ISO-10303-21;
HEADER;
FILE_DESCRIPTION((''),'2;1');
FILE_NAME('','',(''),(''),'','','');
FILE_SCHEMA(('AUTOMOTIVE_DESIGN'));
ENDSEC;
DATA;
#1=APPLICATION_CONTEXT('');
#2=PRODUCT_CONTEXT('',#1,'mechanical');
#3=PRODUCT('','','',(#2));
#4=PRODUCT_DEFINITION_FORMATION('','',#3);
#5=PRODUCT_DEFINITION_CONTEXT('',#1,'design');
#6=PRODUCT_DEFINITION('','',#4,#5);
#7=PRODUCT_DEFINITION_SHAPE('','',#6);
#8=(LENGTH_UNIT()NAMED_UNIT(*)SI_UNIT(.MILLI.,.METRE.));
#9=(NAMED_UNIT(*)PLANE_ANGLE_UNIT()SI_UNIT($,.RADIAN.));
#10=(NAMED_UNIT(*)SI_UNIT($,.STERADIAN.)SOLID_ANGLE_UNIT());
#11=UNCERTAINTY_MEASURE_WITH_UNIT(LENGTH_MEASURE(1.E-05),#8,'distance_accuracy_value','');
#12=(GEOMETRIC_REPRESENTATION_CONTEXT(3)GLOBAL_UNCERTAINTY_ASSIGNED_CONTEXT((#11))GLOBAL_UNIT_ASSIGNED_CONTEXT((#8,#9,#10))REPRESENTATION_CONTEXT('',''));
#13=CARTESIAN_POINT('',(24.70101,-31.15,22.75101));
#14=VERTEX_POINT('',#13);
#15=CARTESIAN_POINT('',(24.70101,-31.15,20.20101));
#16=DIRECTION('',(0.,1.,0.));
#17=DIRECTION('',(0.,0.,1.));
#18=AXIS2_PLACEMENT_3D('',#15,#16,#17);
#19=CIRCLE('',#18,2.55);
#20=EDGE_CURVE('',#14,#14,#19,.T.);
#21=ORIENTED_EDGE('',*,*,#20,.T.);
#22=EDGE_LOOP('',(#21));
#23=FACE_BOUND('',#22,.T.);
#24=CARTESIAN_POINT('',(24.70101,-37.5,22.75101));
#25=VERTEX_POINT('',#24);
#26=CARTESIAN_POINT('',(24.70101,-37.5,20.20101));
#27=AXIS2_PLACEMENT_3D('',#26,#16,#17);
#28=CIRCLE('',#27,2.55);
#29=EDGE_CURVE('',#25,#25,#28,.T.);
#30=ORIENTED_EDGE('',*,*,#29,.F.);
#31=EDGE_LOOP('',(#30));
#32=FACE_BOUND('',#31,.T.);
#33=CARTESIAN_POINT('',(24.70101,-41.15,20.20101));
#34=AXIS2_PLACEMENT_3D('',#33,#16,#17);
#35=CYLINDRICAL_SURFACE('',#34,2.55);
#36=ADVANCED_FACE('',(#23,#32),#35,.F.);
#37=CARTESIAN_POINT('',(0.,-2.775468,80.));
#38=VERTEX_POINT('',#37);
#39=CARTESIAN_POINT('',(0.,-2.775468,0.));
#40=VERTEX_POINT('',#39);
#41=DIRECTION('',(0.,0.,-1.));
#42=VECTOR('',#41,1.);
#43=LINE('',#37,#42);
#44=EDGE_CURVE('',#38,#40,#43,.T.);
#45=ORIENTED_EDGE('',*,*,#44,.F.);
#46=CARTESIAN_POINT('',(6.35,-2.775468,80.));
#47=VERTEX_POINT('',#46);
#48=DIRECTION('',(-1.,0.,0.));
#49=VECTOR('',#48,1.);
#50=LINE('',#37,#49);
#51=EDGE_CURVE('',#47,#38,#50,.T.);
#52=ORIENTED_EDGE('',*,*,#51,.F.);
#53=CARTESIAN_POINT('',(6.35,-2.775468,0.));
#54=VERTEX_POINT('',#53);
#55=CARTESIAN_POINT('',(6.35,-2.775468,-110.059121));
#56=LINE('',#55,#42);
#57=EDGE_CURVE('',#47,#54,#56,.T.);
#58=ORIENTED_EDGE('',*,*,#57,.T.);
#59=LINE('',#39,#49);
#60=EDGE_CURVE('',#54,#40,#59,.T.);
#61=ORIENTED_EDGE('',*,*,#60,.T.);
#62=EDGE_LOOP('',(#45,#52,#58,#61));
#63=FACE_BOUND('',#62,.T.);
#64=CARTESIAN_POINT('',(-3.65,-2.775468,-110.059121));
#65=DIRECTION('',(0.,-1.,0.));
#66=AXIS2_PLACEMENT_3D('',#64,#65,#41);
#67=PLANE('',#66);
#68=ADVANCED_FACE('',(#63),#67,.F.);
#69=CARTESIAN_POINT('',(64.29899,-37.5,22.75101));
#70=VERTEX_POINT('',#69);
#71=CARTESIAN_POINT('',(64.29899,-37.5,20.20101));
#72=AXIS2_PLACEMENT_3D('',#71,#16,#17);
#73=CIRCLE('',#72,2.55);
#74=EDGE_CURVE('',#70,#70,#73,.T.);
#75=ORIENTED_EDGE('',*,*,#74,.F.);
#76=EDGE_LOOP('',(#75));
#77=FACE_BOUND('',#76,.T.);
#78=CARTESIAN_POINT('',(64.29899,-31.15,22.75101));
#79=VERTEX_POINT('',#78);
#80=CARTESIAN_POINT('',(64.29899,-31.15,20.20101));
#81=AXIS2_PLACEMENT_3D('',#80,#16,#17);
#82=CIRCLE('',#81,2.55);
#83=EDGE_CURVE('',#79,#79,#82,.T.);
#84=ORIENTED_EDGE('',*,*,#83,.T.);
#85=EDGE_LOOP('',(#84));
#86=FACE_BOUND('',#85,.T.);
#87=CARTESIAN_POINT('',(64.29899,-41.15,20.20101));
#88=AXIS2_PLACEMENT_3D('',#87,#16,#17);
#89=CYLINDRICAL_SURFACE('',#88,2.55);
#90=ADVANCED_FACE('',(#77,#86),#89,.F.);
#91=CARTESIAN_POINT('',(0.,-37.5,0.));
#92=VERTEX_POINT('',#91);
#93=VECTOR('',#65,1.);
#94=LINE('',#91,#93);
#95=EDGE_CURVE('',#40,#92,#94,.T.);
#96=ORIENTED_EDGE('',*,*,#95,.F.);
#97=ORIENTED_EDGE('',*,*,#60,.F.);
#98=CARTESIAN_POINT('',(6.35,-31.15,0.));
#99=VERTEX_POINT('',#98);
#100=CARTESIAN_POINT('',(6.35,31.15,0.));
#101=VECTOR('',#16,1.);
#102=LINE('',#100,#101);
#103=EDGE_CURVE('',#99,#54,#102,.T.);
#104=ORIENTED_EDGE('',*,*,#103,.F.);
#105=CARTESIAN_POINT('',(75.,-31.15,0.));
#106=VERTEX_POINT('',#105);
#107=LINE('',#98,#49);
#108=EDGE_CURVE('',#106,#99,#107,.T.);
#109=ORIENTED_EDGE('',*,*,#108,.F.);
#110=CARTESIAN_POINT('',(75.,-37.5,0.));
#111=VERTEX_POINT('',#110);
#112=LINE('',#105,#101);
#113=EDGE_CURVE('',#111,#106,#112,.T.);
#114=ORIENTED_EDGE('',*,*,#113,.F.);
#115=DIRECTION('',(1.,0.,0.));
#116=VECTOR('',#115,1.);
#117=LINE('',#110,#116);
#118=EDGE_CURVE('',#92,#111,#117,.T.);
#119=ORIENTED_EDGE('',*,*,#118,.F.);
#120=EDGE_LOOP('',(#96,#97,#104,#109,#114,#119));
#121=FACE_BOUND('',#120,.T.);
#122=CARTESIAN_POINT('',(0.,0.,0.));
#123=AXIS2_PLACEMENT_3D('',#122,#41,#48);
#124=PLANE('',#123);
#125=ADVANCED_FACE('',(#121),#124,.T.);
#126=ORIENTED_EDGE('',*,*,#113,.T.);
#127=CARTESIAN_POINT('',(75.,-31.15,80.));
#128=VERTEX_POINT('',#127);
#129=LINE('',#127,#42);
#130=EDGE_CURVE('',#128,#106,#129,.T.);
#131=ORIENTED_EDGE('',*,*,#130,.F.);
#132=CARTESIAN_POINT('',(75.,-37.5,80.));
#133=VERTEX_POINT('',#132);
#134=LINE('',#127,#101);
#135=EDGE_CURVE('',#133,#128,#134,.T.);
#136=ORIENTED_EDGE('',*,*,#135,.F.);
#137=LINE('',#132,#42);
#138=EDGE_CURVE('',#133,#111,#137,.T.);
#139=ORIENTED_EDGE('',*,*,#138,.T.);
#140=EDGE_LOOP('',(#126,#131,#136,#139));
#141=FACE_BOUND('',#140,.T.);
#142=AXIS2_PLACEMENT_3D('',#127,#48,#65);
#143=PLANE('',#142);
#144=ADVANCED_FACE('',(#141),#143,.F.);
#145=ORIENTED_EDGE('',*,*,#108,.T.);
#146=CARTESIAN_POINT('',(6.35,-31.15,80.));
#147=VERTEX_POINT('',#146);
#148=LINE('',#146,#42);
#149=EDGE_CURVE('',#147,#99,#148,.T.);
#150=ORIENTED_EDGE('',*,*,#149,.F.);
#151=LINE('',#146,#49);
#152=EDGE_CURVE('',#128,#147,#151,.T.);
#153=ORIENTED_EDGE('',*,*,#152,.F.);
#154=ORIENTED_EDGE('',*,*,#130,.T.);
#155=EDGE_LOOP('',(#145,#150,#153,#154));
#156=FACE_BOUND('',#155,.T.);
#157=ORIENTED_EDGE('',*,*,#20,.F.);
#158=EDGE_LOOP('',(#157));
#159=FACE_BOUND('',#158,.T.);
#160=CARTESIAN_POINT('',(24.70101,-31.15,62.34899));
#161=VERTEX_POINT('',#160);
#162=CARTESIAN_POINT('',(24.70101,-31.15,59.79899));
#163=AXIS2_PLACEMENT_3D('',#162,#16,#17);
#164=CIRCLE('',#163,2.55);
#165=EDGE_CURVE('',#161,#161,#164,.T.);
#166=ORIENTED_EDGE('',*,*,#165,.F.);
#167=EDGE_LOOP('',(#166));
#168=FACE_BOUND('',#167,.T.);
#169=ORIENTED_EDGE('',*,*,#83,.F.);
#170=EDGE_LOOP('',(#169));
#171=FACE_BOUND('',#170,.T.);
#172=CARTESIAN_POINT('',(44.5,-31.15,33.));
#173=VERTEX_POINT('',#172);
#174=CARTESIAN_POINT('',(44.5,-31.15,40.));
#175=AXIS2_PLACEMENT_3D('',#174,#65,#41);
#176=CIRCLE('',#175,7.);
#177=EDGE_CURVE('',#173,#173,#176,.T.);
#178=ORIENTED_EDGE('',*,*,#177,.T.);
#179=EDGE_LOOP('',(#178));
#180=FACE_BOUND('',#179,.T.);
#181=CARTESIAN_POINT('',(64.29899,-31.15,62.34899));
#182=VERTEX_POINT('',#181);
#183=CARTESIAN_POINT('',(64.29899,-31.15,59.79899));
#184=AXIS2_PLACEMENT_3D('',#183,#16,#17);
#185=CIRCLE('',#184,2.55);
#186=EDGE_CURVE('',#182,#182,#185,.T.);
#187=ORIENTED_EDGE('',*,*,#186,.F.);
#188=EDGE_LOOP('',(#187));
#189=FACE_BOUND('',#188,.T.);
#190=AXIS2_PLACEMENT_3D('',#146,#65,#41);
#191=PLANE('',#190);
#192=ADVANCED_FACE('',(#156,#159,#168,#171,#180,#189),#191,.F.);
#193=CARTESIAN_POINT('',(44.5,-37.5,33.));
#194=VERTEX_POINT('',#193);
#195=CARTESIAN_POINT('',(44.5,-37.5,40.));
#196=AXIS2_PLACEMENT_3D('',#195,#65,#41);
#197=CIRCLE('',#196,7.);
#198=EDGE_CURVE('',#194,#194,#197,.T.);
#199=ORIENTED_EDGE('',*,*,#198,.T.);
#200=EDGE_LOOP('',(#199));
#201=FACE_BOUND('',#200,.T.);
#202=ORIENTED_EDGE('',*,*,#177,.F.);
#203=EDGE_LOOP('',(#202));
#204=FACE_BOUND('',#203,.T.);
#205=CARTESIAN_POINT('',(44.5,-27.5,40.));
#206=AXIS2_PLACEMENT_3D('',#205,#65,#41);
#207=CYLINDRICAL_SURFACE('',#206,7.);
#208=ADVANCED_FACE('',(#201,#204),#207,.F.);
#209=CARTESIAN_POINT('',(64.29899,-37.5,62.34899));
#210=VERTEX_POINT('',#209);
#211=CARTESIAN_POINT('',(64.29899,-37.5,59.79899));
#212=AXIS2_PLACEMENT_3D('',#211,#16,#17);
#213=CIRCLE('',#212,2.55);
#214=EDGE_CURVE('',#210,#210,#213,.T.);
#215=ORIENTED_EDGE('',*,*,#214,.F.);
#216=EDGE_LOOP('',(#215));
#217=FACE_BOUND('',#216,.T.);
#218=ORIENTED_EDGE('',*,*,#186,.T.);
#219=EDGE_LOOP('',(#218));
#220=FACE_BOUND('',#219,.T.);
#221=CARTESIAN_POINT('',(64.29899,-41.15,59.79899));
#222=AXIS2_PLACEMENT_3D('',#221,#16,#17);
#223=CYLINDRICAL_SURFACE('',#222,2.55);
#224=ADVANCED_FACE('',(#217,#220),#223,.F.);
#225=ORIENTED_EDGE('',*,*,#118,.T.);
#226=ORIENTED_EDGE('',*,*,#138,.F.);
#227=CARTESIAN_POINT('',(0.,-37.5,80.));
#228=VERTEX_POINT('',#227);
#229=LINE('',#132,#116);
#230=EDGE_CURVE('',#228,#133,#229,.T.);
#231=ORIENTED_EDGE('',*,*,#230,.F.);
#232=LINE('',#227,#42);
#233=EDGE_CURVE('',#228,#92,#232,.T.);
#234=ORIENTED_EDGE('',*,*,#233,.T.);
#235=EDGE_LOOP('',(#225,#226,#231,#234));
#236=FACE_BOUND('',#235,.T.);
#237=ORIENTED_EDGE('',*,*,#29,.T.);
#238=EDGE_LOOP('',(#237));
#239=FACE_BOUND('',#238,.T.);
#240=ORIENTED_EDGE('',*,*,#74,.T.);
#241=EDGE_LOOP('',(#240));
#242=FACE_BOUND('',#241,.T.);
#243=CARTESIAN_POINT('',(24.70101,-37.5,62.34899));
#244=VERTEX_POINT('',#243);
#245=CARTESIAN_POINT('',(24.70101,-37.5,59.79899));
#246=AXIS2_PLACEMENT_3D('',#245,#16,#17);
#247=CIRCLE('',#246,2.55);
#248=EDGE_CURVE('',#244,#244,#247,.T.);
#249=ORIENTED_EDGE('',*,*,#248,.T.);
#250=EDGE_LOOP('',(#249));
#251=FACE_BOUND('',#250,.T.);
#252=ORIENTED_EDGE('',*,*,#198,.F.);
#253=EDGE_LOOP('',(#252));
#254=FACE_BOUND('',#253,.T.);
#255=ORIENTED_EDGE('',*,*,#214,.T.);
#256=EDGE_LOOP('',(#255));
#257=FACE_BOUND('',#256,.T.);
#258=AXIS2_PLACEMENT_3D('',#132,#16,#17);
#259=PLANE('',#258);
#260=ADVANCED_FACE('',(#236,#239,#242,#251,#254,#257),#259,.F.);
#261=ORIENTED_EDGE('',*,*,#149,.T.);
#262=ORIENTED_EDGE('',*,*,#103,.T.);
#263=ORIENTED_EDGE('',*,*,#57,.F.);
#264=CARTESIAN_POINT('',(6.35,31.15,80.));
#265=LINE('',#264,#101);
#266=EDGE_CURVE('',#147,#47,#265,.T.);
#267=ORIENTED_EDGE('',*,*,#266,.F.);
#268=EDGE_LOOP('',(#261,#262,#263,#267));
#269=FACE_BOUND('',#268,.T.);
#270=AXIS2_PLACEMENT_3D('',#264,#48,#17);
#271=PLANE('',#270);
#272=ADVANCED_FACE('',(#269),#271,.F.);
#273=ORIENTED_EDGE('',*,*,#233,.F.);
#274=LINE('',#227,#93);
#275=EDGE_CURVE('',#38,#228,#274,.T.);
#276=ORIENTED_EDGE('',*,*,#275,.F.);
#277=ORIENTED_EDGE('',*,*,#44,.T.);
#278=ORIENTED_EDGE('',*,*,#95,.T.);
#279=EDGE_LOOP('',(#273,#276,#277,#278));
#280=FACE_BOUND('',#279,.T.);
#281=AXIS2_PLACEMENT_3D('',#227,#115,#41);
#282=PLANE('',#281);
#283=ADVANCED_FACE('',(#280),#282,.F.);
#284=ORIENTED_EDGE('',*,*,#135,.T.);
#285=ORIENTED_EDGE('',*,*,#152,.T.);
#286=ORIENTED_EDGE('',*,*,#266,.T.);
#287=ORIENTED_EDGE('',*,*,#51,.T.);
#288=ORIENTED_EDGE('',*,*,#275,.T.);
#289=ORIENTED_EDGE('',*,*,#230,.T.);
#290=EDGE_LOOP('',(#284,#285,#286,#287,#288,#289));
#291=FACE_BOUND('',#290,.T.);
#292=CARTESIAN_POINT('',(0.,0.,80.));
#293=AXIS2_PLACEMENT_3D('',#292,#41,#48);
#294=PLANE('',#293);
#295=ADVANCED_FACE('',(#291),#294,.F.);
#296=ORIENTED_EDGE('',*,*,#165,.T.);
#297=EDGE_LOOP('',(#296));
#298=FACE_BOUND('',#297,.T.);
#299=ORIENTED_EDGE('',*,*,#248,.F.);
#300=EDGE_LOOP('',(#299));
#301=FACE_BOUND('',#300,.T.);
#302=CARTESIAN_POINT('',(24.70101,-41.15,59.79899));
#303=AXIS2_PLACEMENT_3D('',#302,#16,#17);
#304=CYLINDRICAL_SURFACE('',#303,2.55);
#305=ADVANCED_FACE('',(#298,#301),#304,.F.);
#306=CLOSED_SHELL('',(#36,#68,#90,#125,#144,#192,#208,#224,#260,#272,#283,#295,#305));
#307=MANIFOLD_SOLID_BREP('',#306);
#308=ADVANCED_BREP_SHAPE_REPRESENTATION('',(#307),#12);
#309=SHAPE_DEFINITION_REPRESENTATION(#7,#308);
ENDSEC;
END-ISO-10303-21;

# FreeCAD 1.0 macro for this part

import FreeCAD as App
import Part
import Sketcher

V = App.Vector
Q = App.Units.Quantity


def add_polygon(sketch, points):
    """Adds a closed chain of lines whose ends are joined by coincident constraints."""
    first, n = sketch.GeometryCount, len(points)
    for a, b in zip(points, points[1:] + points[:1]):
        sketch.addGeometry(Part.LineSegment(App.Vector(*a, 0), App.Vector(*b, 0)), False)
    for i in range(n):
        sketch.addConstraint(Sketcher.Constraint("Coincident", first + i, 2, first + (i + 1) % n, 1))

doc = App.newDocument("Part")
body = doc.addObject("PartDesign::Body", "Body")

# Sketch on XY plane
sketch1 = body.newObject("Sketcher::SketchObject", "Sketch")
sketch1.AttachmentSupport = (doc.getObject("XY_Plane"), [""])
sketch1.MapMode = "FlatFace"
add_polygon(sketch1, [(0, 38), (0, -38), (75, -38), (75, -31), (6, -31), (6, 31), (75, 31), (75, 38)])  # lines 0-7
sketch1.addConstraint([
    Sketcher.Constraint("Vertical", 0),
    Sketcher.Constraint("Horizontal", 1),
    Sketcher.Constraint("Vertical", 2),
    Sketcher.Constraint("Horizontal", 3),
    Sketcher.Constraint("Vertical", 4),
    Sketcher.Constraint("Horizontal", 5),
    Sketcher.Constraint("Vertical", 6),
    Sketcher.Constraint("Horizontal", 7),
    Sketcher.Constraint("Symmetric", 0, 2, 7, 2, -1, 1),
    Sketcher.Constraint("Symmetric", 2, 2, 5, 2, -1),
    Sketcher.Constraint("Equal", 7, 0),
    Sketcher.Constraint("DistanceX", 1, 1, 1, 2, Q("75 mm")),
    Sketcher.Constraint("DistanceY", 4, 1, 4, 2, Q("62.3 mm")),
    Sketcher.Constraint("DistanceX", 3, 2, 3, 1, Q("68.65 mm")),
])
pad1 = body.newObject("PartDesign::Pad", "Pad")
pad1.Profile = sketch1
pad1.Length = 80

# Sketch on XZ plane
sketch2 = body.newObject("Sketcher::SketchObject", "Sketch001")
sketch2.AttachmentSupport = (doc.getObject("XZ_Plane"), [""])
sketch2.MapMode = "FlatFace"
sketch2.AttachmentOffset = App.Placement(V(0, 0, -37.5), App.Rotation())
add_polygon(sketch2, [(6, 0), (6, 80), (75, 80), (75, 0)])  # lines 0-3
sketch2.addConstraint([
    Sketcher.Constraint("Vertical", 0),
    Sketcher.Constraint("Horizontal", 1),
    Sketcher.Constraint("Vertical", 2),
    Sketcher.Constraint("Horizontal", 3),
    Sketcher.Constraint("PointOnObject", 2, 2, -1),
    Sketcher.Constraint("DistanceY", 0, 1, 0, 2, Q("80 mm")),
    Sketcher.Constraint("DistanceX", -1, 1, 1, 2, Q("75 mm")),
    Sketcher.Constraint("DistanceX", 1, 1, 1, 2, Q("68.65 mm")),
])
pocket1 = body.newObject("PartDesign::Pocket", "Pocket")
pocket1.Profile = sketch2
pocket1.Length = 10
pocket1.Reversed = True

# Sketch on XZ plane
sketch3 = body.newObject("Sketcher::SketchObject", "Sketch002")
sketch3.AttachmentSupport = (doc.getObject("XZ_Plane"), [""])
sketch3.MapMode = "FlatFace"
sketch3.AttachmentOffset = App.Placement(V(0, 0, 37.5), App.Rotation())
sketch3.addGeometry(Part.Circle(V(44, 40, 0), V(0, 0, 1), 7), False)
sketch3.addConstraint([
    Sketcher.Constraint("Diameter", 0, Q("14 mm")),
    Sketcher.Constraint("DistanceY", -1, 1, 0, 3, Q("40 mm")),
    Sketcher.Constraint("DistanceX", -1, 1, 0, 3, Q("44.5 mm")),
])
pocket2 = body.newObject("PartDesign::Pocket", "Pocket001")
pocket2.Profile = sketch3
pocket2.Length = 10

# Sketch on XZ plane
sketch4 = body.newObject("Sketcher::SketchObject", "Sketch003")
sketch4.AttachmentSupport = (doc.getObject("XZ_Plane"), [""])
sketch4.MapMode = "FlatFace"
sketch4.AttachmentOffset = App.Placement(V(0, 0, 31.15), App.Rotation())
sketch4.addGeometry([
    Part.Circle(V(64.3, 20.2, 0), V(0, 0, 1), 2.5),
    Part.Circle(V(64.3, 59.8, 0), V(0, 0, 1), 2.5),
    Part.Circle(V(24.7, 59.8, 0), V(0, 0, 1), 2.5),
    Part.Circle(V(24.7, 20.2, 0), V(0, 0, 1), 2.5),
], False)
sketch4.addConstraint([
    Sketcher.Constraint("Equal", 0, 1),
    Sketcher.Constraint("Equal", 1, 2),
    Sketcher.Constraint("Equal", 2, 3),
    Sketcher.Constraint("Horizontal", 1, 3, 2, 3),
    Sketcher.Constraint("Horizontal", 0, 3, 3, 3),
    Sketcher.Constraint("Vertical", 0, 3, 1, 3),
    Sketcher.Constraint("Vertical", 2, 3, 3, 3),
    Sketcher.Constraint("Diameter", 0, Q("5.1 mm")),
    Sketcher.Constraint("DistanceX", -1, 1, 0, 3, Q("64.29899 mm")),
    Sketcher.Constraint("DistanceY", -1, 1, 0, 3, Q("20.20101 mm")),
    Sketcher.Constraint("DistanceY", -1, 1, 1, 3, Q("59.79899 mm")),
    Sketcher.Constraint("DistanceX", -1, 1, 2, 3, Q("24.70101 mm")),
])
pocket3 = body.newObject("PartDesign::Pocket", "Pocket002")
pocket3.Profile = sketch4
pocket3.Length = 10
pocket3.Reversed = True

# Sketch on YZ plane
sketch5 = body.newObject("Sketcher::SketchObject", "Sketch004")
sketch5.AttachmentSupport = (doc.getObject("YZ_Plane"), [""])
sketch5.MapMode = "FlatFace"
sketch5.AttachmentOffset = App.Placement(V(0, 0, 6.35), App.Rotation())
add_polygon(sketch5, [(59, 169), (-3, 169), (-3, -110), (59, -110)])  # lines 0-3
sketch5.addConstraint([
    Sketcher.Constraint("Horizontal", 0),
    Sketcher.Constraint("Vertical", 1),
    Sketcher.Constraint("Horizontal", 2),
    Sketcher.Constraint("Vertical", 3),
    Sketcher.Constraint("DistanceX", 0, 2, 0, 1, Q("61.46775 mm")),
    Sketcher.Constraint("DistanceY", 1, 2, 1, 1, Q("278.618693 mm")),
    Sketcher.Constraint("DistanceX", 0, 2, -1, 1, Q("2.775468 mm")),
    Sketcher.Constraint("DistanceY", 1, 2, -1, 1, Q("110.059121 mm")),
])
pocket4 = body.newObject("PartDesign::Pocket", "Pocket003")
pocket4.Profile = sketch5
pocket4.Length = 10

doc.recompute()
